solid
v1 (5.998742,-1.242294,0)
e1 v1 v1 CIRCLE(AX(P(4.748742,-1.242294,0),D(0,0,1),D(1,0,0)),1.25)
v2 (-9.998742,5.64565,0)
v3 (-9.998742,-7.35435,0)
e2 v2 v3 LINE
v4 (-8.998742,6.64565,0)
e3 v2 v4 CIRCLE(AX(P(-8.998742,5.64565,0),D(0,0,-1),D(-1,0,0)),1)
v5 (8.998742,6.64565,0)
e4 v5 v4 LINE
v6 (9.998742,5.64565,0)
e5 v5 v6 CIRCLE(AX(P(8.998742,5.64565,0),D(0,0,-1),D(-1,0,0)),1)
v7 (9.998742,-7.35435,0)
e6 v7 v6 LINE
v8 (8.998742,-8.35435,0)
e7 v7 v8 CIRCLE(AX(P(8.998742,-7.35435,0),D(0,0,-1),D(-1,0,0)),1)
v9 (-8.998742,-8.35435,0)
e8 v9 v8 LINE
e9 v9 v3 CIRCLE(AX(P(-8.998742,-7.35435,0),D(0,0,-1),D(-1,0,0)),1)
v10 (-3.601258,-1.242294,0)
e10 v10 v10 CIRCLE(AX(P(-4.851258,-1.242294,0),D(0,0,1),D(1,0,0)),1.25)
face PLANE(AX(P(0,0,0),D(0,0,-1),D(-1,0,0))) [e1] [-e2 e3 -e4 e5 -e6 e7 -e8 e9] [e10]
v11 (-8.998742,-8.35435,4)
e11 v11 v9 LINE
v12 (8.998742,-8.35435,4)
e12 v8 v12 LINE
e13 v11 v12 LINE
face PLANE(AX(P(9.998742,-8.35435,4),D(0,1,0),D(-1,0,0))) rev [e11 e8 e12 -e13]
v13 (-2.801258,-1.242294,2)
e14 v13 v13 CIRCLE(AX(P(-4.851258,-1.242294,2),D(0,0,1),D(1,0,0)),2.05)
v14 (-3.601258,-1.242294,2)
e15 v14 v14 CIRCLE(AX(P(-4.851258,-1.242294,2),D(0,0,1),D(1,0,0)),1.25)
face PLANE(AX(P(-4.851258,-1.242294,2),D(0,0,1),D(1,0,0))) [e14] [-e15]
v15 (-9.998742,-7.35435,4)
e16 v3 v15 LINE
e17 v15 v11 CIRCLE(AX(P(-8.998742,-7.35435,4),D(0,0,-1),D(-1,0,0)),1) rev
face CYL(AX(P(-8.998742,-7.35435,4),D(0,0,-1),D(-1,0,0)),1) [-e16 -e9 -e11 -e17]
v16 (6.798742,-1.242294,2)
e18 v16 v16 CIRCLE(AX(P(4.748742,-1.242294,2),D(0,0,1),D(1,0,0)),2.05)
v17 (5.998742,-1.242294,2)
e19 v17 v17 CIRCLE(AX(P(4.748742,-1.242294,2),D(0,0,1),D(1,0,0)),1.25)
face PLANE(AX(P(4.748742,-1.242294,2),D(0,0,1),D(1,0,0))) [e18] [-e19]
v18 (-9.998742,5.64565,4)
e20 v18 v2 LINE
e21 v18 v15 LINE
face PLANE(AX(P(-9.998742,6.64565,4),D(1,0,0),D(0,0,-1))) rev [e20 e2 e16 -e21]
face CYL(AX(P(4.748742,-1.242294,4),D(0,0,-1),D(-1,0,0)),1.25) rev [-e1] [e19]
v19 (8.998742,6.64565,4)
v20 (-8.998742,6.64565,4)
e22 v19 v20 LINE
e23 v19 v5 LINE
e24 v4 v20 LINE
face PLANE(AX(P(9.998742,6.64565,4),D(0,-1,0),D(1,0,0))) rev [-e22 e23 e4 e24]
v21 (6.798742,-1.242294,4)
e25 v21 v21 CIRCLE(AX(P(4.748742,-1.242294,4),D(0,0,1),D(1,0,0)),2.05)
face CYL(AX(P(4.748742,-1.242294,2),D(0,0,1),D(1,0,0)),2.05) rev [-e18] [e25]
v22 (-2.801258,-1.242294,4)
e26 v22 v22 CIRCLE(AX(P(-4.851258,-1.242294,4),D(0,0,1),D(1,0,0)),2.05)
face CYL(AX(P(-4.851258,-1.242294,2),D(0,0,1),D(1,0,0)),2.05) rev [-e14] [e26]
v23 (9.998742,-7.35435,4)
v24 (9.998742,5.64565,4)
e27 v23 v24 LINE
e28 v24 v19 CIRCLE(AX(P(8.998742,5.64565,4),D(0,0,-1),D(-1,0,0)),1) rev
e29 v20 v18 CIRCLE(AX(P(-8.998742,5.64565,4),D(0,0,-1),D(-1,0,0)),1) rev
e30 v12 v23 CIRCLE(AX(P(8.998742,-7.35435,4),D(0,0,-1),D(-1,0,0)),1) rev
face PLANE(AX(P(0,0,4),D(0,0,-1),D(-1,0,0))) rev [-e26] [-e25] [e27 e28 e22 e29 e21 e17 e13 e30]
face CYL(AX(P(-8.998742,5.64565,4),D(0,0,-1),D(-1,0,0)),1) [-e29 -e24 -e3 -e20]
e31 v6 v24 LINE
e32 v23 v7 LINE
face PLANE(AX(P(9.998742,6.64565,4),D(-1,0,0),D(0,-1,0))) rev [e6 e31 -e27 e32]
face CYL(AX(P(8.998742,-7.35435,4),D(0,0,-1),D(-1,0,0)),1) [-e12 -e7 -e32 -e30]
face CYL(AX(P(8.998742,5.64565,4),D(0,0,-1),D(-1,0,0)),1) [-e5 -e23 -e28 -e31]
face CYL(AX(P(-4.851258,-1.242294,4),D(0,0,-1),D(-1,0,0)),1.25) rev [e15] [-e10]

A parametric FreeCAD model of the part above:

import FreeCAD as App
import Part
import Sketcher

V = App.Vector
Q = App.Units.Quantity


def edges_at(feature, points):
    """Names of the edges that pass closest to the given points."""
    edges = feature.Shape.Edges
    near = lambda p: min(range(len(edges)), key=lambda i: edges[i].distToShape(Part.Vertex(*p))[0])
    return sorted({f"Edge{near(p) + 1}" for p in points})


def add_polygon(sketch, points):
    """Adds a closed chain of lines whose ends are joined by coincident constraints."""
    first, n = sketch.GeometryCount, len(points)
    for a, b in zip(points, points[1:] + points[:1]):
        sketch.addGeometry(Part.LineSegment(App.Vector(*a, 0), App.Vector(*b, 0)), False)
    for i in range(n):
        sketch.addConstraint(Sketcher.Constraint("Coincident", first + i, 2, first + (i + 1) % n, 1))

doc = App.newDocument("Part")
body = doc.addObject("PartDesign::Body", "Body")

# Sketch on XY plane
sketch1 = body.newObject("Sketcher::SketchObject", "Sketch")
sketch1.AttachmentSupport = (doc.getObject("XY_Plane"), [""])
sketch1.MapMode = "FlatFace"
add_polygon(sketch1, [(-9.998742, 6.64565), (-9.998742, -8.35435), (9.998742, -8.35435), (9.998742, 6.64565)])  # lines 0-3
sketch1.addGeometry(Part.Circle(V(-4.851258, -1.242294, 0), V(0, 0, 1), 1.25), False)  # 4
sketch1.addGeometry(Part.Circle(V(4.748742, -1.242294, 0), V(0, 0, 1), 1.25), False)  # 5
sketch1.addConstraint([
    Sketcher.Constraint("Vertical", 0),
    Sketcher.Constraint("Horizontal", 1),
    Sketcher.Constraint("Vertical", 2),
    Sketcher.Constraint("Horizontal", 3),
    Sketcher.Constraint("Equal", 4, 5),
    Sketcher.Constraint("Horizontal", 4, 3, 5, 3),
    Sketcher.Constraint("Diameter", 4, Q("2.5 mm")),
    Sketcher.Constraint("DistanceY", 0, 2, 0, 1, Q("15 mm")),
    Sketcher.Constraint("DistanceX", 4, 3, 5, 3, Q("9.6 mm")),
    Sketcher.Constraint("DistanceX", 5, 3, 1, 2, Q("5.25 mm")),
    Sketcher.Constraint("DistanceX", 1, 1, 1, 2, Q("19.997483 mm")),
    Sketcher.Constraint("DistanceX", 4, 3, -1, 1, Q("4.851258 mm")),
    Sketcher.Constraint("DistanceY", 0, 2, -1, 1, Q("8.35435 mm")),
    Sketcher.Constraint("DistanceY", 4, 3, -1, 1, Q("1.242294 mm")),
])
pad1 = body.newObject("PartDesign::Pad", "Pad")
pad1.Profile = sketch1
pad1.Length = 4

# Sketch on XY plane
sketch2 = body.newObject("Sketcher::SketchObject", "Sketch001")
sketch2.AttachmentSupport = (doc.getObject("XY_Plane"), [""])
sketch2.MapMode = "FlatFace"
sketch2.AttachmentOffset = App.Placement(V(0, 0, 4), App.Rotation())
sketch2.addGeometry([
    Part.Circle(V(-4.851258, -1.242294, 0), V(0, 0, 1), 2.05),
    Part.Circle(V(4.748742, -1.242294, 0), V(0, 0, 1), 2.05),
], False)
sketch2.addConstraint([
    Sketcher.Constraint("Equal", 0, 1),
    Sketcher.Constraint("Horizontal", 0, 3, 1, 3),
    Sketcher.Constraint("Diameter", 0, Q("4.1 mm")),
    Sketcher.Constraint("DistanceX", 0, 3, 1, 3, Q("9.6 mm")),
    Sketcher.Constraint("DistanceX", 0, 3, -1, 1, Q("4.851258 mm")),
    Sketcher.Constraint("DistanceY", 0, 3, -1, 1, Q("1.242294 mm")),
])
pocket1 = body.newObject("PartDesign::Pocket", "Pocket")
pocket1.Profile = sketch2
pocket1.Length = 2
doc.recompute()

fillet = body.newObject("PartDesign::Fillet", "Fillet")
fillet.Base = (pocket1, edges_at(pocket1, [
    (9.999, -8.354, 2),
    (-9.999, -8.354, 2),
    (-9.999, 6.646, 2),
    (9.999, 6.646, 2),
]))
fillet.Radius = 1

doc.recompute()
